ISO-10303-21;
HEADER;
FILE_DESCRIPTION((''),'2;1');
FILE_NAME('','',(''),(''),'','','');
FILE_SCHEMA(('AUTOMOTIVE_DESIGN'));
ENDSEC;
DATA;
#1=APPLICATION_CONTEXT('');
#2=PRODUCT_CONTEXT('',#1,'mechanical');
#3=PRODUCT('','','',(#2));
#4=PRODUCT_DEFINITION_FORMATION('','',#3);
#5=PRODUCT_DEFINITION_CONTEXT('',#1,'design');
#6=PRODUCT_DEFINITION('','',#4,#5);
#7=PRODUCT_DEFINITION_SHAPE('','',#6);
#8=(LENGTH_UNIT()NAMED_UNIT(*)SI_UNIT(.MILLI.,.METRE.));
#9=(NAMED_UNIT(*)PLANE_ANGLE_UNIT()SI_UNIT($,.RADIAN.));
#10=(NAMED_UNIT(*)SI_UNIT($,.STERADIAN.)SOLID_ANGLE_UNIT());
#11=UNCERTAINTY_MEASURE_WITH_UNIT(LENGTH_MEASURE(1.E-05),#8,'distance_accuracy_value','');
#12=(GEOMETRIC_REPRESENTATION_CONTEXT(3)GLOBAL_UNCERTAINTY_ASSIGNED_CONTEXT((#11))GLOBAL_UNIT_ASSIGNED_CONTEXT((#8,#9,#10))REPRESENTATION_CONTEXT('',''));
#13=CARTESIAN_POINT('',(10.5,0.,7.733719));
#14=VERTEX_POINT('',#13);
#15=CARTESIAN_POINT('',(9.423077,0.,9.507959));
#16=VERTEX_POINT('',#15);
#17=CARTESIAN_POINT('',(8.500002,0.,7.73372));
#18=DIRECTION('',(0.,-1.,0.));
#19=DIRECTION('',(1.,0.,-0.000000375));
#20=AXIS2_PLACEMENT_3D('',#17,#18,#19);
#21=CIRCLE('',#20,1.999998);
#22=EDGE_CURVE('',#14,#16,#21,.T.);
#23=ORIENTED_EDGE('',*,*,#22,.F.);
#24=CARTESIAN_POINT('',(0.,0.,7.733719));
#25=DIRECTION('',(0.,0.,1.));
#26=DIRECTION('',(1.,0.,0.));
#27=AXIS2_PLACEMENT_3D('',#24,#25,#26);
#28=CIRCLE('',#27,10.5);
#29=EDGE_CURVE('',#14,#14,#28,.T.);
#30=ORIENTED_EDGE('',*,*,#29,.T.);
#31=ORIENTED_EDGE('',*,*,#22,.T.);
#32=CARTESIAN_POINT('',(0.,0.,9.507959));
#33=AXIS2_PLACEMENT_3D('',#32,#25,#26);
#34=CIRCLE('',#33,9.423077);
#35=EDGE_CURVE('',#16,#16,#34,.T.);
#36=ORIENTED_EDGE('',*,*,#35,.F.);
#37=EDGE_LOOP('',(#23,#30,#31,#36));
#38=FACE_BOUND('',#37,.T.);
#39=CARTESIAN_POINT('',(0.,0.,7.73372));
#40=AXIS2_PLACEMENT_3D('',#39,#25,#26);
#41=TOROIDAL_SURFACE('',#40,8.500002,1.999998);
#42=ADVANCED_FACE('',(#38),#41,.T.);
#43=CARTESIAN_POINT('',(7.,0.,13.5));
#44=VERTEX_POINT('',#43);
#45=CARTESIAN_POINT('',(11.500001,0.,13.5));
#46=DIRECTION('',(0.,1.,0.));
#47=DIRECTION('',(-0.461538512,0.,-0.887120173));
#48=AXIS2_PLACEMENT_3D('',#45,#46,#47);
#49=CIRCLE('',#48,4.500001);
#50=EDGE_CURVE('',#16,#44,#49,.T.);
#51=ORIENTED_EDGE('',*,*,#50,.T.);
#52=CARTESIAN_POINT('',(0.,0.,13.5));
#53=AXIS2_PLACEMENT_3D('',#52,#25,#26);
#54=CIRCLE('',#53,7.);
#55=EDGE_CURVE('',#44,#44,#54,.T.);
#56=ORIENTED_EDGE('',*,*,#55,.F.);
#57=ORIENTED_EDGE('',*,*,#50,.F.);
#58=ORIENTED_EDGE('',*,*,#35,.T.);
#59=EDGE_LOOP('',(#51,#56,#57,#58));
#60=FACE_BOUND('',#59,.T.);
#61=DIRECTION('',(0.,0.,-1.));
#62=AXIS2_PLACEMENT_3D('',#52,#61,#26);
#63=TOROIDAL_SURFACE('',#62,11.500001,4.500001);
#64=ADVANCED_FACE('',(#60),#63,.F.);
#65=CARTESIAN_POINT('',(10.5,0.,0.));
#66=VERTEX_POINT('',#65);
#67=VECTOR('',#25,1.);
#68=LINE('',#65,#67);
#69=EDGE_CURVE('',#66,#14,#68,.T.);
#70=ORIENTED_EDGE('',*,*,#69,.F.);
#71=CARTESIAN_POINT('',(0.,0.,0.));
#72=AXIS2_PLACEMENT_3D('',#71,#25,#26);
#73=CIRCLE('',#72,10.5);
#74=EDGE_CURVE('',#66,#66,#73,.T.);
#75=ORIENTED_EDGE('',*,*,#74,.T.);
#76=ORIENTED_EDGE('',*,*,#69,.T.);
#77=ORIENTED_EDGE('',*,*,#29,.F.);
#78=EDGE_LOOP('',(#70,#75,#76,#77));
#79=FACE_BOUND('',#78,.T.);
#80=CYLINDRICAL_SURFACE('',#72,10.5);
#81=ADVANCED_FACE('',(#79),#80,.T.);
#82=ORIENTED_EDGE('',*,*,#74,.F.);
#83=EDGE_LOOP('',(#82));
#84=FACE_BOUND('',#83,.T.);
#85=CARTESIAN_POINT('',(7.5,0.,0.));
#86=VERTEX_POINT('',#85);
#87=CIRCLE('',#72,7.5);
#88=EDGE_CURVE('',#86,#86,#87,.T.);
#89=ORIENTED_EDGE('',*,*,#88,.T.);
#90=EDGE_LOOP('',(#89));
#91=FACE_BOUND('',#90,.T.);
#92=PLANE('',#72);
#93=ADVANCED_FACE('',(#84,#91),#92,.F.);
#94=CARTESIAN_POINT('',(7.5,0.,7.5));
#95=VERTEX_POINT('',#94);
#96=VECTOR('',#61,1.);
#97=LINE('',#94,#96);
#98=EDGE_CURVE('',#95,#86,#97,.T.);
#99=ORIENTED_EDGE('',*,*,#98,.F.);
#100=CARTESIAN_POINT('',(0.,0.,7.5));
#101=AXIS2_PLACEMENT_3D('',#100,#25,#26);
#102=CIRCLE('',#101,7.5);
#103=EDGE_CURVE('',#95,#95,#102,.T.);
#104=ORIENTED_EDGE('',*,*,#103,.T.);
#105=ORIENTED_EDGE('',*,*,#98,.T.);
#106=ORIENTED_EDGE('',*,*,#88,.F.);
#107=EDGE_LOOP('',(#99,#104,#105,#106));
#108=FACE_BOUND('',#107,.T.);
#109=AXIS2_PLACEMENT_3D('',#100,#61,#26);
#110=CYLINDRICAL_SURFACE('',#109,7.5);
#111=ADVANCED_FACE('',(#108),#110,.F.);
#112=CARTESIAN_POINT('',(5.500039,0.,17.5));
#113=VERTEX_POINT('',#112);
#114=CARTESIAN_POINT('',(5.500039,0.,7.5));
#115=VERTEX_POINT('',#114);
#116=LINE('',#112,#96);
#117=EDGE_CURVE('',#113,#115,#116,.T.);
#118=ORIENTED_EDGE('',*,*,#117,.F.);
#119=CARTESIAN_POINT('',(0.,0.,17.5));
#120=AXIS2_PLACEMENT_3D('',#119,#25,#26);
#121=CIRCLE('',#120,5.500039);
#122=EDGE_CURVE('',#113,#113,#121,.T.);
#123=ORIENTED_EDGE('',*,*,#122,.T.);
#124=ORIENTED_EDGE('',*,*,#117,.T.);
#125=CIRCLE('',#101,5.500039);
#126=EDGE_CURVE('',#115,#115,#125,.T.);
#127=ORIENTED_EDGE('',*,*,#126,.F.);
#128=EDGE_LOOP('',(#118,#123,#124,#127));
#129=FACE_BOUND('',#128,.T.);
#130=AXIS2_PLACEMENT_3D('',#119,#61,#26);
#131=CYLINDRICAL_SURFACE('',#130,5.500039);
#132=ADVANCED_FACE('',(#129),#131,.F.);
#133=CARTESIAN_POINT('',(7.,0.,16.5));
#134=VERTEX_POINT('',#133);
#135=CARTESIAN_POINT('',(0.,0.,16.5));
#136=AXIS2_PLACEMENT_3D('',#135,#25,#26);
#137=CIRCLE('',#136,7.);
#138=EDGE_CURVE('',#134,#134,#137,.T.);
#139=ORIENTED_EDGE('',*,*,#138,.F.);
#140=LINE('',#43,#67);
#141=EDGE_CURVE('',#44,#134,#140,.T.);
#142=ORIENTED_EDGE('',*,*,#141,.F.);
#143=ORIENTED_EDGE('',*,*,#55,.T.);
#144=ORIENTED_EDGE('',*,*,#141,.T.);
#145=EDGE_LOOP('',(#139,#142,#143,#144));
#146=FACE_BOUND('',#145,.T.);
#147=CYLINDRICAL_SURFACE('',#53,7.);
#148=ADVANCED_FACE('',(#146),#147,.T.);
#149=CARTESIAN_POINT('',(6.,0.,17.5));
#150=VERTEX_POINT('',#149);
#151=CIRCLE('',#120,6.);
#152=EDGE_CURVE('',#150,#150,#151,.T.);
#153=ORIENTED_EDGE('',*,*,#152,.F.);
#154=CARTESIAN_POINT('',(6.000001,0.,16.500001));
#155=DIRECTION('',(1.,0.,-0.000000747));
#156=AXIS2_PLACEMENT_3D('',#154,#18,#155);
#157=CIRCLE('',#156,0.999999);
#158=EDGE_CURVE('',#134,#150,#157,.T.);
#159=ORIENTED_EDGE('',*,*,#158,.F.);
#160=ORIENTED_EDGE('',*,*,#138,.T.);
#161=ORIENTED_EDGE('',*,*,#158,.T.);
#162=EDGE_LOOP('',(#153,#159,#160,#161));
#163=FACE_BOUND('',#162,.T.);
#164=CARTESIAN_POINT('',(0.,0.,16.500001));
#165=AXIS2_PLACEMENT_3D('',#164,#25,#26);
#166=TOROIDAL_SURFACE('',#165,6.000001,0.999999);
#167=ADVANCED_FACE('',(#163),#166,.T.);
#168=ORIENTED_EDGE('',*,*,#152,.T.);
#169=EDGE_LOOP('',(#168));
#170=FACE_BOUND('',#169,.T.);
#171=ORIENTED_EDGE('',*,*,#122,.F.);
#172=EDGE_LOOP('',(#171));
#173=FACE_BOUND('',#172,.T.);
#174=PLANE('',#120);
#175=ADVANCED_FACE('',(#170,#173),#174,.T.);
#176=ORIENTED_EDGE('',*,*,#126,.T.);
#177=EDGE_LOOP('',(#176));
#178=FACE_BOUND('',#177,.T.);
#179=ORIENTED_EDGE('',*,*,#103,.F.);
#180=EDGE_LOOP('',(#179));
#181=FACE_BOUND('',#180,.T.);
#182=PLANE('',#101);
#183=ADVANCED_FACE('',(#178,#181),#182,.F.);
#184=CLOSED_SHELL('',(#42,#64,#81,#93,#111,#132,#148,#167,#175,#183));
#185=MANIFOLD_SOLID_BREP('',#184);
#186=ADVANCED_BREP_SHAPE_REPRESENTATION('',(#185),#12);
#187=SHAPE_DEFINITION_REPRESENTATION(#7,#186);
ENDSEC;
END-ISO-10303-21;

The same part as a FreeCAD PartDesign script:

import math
import FreeCAD as App
import Part
import Sketcher
from FreeCAD import Vector
Q = App.Units.Quantity

doc = App.newDocument("Part")
body = doc.addObject("PartDesign::Body", "Body")

sketch1 = body.newObject("Sketcher::SketchObject", "Sketch")
sketch1.AttachmentSupport = (doc.getObject("XZ_Plane"), [""])
sketch1.MapMode = "FlatFace"
sketch1.addGeometry([
    Part.LineSegment(Vector(7.5, 7.5, 0), Vector(7.5, 0, 0)),
    Part.LineSegment(Vector(7.5, 0, 0), Vector(10.5, 0, 0)),
    Part.LineSegment(Vector(10.5, 0, 0), Vector(10.5, 7.73, 0)),
    Part.ArcOfCircle(Part.Circle(Vector(8.5, 7.73, 0), Vector(0, 0, 1), 2), math.radians(0), math.radians(63)),
    Part.ArcOfCircle(Part.Circle(Vector(11.5, 13.5, 0), Vector(0, 0, 1), 4.5), math.radians(-180), math.radians(-117)),
    Part.LineSegment(Vector(7, 13.5, 0), Vector(7, 16.5, 0)),
    Part.ArcOfCircle(Part.Circle(Vector(6, 16.5, 0), Vector(0, 0, 1), 1), math.radians(0), math.radians(90)),
    Part.LineSegment(Vector(6, 17.5, 0), Vector(5.5, 17.5, 0)),
    Part.LineSegment(Vector(5.5, 17.5, 0), Vector(5.5, 7.5, 0)),
    Part.LineSegment(Vector(5.5, 7.5, 0), Vector(7.5, 7.5, 0)),
], False)
sketch1.addConstraint([
    Sketcher.Constraint("Coincident", 0, 2, 1, 1),
    Sketcher.Constraint("Coincident", 1, 2, 2, 1),
    Sketcher.Constraint("Tangent", 2, 2, 3, 1),
    Sketcher.Constraint("Tangent", 3, 2, 4, 2),
    Sketcher.Constraint("Tangent", 4, 1, 5, 1),
    Sketcher.Constraint("Tangent", 5, 2, 6, 1),
    Sketcher.Constraint("Tangent", 6, 2, 7, 1),
    Sketcher.Constraint("Coincident", 7, 2, 8, 1),
    Sketcher.Constraint("Coincident", 8, 2, 9, 1),
    Sketcher.Constraint("Coincident", 9, 2, 0, 1),
    Sketcher.Constraint("Vertical", 0),
    Sketcher.Constraint("Horizontal", 1),
    Sketcher.Constraint("Vertical", 2),
    Sketcher.Constraint("Vertical", 5),
    Sketcher.Constraint("Horizontal", 7),
    Sketcher.Constraint("Vertical", 8),
    Sketcher.Constraint("Horizontal", 9),
    Sketcher.Constraint("PointOnObject", 0, 2, -1),
    Sketcher.Constraint("Equal", 1, 5),
    Sketcher.Constraint("Radius", 3, Q("1.999998 mm")),
    Sketcher.Constraint("Radius", 6, Q("0.999999 mm")),
    Sketcher.Constraint("Radius", 4, Q("4.500001 mm")),
    Sketcher.Constraint("DistanceX", 1, 1, 1, 2, Q("3 mm")),
    Sketcher.Constraint("DistanceY", 8, 2, 8, 1, Q("10 mm")),
    Sketcher.Constraint("DistanceY", 0, 2, 0, 1, Q("7.5 mm")),
    Sketcher.Constraint("DistanceX", -1, 1, 6, 3, Q("6.000001 mm")),
    Sketcher.Constraint("DistanceX", 3, 3, 4, 3, Q("2.999999 mm")),
    Sketcher.Constraint("DistanceX", 7, 2, 7, 1, Q("0.499961 mm")),
])
revolution = body.newObject("PartDesign::Revolution", "Revolution")
revolution.Profile = sketch1
revolution.ReferenceAxis = (sketch1, ["V_Axis"])
revolution.Angle = 360

doc.recompute()
